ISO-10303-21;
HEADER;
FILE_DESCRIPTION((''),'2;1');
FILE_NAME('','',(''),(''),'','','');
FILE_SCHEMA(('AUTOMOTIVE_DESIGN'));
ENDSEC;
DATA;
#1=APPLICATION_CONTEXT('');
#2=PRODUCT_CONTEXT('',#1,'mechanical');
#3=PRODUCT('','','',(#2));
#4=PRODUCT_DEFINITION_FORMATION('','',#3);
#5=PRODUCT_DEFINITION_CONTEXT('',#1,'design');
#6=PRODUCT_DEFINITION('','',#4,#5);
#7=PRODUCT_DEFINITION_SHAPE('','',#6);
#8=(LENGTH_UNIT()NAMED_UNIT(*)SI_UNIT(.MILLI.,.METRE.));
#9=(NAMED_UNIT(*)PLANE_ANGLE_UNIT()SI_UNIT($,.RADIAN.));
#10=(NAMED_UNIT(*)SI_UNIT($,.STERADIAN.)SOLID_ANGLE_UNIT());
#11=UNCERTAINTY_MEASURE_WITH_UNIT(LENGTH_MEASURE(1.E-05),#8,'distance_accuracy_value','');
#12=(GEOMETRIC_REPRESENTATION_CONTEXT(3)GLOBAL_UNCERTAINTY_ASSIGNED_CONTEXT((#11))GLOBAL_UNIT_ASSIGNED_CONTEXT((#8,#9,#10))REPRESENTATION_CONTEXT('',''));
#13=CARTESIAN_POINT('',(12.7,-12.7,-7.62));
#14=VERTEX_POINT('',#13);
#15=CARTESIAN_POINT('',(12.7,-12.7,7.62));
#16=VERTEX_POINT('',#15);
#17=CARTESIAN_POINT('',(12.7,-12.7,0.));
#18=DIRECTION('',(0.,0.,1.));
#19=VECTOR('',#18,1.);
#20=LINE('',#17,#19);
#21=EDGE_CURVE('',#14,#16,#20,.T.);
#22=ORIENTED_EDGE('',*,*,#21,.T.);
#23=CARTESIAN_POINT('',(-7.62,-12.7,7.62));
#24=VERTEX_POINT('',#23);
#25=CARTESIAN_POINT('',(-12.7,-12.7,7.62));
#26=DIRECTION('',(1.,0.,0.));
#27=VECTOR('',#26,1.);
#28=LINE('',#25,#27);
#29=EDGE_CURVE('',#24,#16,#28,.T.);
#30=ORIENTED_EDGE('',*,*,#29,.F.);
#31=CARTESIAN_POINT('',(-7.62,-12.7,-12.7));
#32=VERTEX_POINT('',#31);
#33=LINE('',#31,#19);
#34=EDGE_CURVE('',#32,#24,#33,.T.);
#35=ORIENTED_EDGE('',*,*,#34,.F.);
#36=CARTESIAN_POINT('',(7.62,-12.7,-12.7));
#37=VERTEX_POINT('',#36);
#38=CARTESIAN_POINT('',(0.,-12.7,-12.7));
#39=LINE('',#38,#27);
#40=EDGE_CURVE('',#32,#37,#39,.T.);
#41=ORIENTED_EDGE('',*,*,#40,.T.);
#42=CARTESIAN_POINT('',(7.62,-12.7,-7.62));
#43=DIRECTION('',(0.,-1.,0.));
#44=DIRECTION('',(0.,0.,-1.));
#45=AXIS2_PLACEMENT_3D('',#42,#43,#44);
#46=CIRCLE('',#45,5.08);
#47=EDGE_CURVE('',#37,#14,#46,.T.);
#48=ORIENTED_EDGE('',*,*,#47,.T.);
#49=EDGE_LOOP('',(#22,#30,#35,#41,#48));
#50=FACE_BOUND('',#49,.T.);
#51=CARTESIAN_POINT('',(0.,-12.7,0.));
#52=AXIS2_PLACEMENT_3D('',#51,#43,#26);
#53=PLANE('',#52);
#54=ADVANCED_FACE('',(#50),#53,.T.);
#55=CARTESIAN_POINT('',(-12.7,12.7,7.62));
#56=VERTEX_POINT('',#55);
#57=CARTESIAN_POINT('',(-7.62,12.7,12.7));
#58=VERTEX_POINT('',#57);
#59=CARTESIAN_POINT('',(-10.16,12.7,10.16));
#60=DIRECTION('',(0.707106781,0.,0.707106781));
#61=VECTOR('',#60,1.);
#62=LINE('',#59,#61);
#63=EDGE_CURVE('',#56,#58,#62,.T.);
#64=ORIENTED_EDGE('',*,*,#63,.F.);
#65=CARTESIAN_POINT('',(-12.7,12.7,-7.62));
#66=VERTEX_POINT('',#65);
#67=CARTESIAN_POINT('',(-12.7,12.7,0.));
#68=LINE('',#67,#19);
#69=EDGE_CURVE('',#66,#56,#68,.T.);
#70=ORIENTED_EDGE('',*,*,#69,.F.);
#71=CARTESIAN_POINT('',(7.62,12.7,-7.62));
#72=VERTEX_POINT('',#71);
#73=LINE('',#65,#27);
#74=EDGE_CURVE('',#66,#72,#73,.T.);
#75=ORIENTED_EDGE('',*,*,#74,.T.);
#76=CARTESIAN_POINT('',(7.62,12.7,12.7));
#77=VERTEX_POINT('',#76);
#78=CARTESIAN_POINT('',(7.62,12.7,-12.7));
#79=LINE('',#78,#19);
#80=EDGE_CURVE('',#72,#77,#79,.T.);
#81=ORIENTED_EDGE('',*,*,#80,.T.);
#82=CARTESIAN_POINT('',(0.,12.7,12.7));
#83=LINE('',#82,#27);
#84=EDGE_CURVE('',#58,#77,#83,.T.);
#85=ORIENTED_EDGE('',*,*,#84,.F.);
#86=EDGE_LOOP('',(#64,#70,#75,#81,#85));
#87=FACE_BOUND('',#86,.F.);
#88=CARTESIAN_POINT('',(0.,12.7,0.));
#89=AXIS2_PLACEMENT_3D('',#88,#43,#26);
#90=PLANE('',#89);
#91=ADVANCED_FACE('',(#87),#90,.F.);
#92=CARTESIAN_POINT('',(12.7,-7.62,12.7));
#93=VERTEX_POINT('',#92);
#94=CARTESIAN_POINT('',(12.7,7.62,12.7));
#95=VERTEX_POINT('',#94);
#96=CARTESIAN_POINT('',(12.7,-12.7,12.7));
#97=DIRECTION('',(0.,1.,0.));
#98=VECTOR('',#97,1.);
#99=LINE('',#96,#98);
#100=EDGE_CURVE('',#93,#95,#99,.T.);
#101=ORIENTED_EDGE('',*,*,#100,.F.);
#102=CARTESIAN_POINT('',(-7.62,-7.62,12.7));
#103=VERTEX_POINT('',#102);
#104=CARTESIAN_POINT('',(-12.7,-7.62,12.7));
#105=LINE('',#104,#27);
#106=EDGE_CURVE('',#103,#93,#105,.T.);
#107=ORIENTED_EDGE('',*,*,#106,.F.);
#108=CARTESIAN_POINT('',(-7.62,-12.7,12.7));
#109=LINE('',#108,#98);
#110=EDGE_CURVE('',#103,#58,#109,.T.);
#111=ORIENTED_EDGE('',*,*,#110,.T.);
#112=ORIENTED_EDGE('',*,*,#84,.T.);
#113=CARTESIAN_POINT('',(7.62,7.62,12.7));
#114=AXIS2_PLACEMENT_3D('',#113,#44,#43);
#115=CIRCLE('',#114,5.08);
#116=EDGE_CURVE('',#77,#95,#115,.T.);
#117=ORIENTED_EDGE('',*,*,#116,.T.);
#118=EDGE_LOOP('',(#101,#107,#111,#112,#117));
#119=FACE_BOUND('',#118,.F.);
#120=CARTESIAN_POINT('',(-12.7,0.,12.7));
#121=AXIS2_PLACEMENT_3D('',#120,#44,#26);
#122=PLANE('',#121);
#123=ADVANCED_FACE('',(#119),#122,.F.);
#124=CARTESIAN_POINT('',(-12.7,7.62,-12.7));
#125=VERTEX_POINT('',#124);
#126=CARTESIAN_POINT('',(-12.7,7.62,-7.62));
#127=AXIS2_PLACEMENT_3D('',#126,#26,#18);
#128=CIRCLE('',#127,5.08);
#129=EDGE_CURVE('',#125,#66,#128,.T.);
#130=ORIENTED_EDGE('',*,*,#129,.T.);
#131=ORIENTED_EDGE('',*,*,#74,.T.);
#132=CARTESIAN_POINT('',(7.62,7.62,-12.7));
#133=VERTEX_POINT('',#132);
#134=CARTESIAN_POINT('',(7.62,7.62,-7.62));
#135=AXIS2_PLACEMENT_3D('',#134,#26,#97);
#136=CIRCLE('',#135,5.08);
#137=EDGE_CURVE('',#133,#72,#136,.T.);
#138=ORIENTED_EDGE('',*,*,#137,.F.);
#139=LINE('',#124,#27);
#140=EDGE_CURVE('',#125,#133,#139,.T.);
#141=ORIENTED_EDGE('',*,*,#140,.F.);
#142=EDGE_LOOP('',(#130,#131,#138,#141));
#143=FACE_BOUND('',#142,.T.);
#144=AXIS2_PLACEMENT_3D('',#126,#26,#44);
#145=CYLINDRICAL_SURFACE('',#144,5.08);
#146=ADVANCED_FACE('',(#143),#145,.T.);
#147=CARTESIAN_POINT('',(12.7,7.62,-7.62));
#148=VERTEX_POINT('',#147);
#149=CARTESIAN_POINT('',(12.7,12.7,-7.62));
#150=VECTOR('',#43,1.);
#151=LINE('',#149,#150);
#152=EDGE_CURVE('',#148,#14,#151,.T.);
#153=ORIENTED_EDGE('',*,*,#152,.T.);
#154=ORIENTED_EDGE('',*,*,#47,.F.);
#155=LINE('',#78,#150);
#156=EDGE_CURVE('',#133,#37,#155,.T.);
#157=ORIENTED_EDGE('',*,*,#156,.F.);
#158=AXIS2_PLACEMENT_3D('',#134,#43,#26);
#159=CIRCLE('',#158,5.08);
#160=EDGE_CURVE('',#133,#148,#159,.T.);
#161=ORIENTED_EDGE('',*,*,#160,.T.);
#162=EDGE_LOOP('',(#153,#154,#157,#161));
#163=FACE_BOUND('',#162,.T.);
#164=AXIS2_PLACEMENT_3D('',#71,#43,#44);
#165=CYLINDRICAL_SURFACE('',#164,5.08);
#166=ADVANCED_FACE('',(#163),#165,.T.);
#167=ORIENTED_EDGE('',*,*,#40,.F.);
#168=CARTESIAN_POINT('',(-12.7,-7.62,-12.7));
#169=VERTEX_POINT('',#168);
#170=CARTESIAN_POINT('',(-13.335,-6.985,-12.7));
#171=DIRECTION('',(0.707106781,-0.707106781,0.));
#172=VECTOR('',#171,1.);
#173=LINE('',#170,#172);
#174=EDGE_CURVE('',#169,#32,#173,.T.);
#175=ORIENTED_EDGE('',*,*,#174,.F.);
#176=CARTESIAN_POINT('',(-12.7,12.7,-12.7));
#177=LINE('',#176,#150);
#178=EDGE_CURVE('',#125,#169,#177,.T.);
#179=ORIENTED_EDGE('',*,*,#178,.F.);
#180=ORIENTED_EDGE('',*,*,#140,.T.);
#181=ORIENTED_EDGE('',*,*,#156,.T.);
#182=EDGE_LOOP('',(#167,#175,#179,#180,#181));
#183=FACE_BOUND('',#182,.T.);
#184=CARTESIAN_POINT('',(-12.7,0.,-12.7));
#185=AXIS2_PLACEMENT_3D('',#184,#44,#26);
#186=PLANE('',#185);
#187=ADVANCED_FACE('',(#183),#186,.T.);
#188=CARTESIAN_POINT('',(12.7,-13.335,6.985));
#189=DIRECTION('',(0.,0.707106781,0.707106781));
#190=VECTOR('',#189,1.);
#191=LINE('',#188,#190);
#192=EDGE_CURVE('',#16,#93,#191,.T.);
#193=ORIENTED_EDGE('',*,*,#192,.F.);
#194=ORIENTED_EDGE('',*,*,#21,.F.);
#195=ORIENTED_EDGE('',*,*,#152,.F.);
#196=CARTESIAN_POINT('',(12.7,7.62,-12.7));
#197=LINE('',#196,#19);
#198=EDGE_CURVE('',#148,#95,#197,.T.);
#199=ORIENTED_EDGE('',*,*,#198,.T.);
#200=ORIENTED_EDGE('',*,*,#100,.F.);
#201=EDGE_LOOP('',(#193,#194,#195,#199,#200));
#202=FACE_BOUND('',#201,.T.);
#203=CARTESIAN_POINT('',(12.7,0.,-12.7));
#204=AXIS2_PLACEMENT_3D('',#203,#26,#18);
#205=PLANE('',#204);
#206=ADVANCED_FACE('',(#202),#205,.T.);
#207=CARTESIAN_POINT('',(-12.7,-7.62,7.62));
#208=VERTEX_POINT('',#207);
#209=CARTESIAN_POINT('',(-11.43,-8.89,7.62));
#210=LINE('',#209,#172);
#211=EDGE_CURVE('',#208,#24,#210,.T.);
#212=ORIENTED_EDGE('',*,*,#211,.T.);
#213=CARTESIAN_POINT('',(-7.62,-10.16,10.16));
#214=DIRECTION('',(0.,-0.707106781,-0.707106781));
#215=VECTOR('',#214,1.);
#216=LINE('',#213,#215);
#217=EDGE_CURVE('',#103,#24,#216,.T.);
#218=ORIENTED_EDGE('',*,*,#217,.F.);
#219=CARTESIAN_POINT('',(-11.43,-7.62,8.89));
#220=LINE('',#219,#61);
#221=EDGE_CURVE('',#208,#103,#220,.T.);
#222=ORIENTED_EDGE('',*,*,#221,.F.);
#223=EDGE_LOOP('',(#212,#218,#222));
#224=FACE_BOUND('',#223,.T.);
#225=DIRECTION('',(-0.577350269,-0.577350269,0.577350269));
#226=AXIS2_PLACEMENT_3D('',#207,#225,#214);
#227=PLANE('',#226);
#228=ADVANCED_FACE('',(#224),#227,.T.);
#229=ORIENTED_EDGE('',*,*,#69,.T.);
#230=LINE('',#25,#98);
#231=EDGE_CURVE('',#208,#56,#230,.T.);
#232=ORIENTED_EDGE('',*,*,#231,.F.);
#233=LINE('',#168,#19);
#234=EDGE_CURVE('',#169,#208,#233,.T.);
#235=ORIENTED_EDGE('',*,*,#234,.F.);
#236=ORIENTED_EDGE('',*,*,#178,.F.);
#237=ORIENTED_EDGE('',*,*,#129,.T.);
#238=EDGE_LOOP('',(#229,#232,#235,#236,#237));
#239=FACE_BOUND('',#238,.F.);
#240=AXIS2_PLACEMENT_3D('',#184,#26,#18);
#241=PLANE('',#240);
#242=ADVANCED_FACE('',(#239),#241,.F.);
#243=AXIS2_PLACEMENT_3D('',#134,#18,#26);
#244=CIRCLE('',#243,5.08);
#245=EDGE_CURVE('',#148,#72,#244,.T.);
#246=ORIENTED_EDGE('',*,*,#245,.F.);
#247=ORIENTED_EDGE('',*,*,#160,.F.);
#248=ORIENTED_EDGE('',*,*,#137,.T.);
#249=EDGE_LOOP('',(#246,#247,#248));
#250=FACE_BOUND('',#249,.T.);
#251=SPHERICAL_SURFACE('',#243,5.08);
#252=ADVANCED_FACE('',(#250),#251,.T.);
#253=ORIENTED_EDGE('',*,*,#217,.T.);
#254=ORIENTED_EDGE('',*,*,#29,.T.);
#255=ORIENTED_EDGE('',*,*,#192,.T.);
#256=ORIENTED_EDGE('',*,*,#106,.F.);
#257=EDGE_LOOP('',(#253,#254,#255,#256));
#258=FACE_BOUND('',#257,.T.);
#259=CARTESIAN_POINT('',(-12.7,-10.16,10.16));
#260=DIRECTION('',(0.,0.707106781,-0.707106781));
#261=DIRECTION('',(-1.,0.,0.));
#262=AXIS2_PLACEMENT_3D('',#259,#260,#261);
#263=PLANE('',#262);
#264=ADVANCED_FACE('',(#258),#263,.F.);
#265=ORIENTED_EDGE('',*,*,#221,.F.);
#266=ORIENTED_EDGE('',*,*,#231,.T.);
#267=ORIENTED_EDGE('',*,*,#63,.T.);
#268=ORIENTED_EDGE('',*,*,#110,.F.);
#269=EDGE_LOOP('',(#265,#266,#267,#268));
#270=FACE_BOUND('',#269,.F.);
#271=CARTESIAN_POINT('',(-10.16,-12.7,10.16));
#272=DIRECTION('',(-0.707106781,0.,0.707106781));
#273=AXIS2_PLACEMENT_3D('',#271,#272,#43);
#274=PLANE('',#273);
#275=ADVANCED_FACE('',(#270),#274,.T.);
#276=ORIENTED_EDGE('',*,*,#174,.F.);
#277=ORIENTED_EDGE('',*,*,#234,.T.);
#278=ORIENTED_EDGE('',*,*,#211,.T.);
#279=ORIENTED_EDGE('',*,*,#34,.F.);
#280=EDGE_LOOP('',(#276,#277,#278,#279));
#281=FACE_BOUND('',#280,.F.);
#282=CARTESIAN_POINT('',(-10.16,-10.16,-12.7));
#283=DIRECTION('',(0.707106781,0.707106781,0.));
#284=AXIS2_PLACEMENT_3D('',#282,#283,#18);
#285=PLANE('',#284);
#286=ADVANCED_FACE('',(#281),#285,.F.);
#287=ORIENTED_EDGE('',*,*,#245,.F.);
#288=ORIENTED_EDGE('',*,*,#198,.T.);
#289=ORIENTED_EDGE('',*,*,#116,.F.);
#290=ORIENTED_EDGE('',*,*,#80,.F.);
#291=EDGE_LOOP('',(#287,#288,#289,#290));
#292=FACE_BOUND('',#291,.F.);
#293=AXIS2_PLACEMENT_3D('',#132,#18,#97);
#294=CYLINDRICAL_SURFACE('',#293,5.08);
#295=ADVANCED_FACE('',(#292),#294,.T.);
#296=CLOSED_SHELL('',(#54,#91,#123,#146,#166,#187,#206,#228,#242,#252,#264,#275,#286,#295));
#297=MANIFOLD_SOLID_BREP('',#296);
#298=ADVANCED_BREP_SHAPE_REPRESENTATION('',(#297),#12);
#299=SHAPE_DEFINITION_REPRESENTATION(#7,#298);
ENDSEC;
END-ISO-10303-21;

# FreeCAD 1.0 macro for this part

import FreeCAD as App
import Part
import Sketcher
Q = App.Units.Quantity


def edges_at(feature, points):
    """Names of the edges that pass closest to the given points."""
    edges = feature.Shape.Edges
    near = lambda p: min(range(len(edges)), key=lambda i: edges[i].distToShape(Part.Vertex(*p))[0])
    return sorted({f"Edge{near(p) + 1}" for p in points})


def add_polygon(sketch, points):
    """Adds a closed chain of lines whose ends are joined by coincident constraints."""
    first, n = sketch.GeometryCount, len(points)
    for a, b in zip(points, points[1:] + points[:1]):
        sketch.addGeometry(Part.LineSegment(App.Vector(*a, 0), App.Vector(*b, 0)), False)
    for i in range(n):
        sketch.addConstraint(Sketcher.Constraint("Coincident", first + i, 2, first + (i + 1) % n, 1))

doc = App.newDocument("Part")
body = doc.addObject("PartDesign::Body", "Body")

# Sketch on XZ plane
sketch1 = body.newObject("Sketcher::SketchObject", "Sketch")
sketch1.AttachmentSupport = (doc.getObject("XZ_Plane"), [""])
sketch1.MapMode = "FlatFace"
add_polygon(sketch1, [(-13, 13), (-13, -13), (13, -13), (13, 13)])  # lines 0-3
sketch1.addConstraint([
    Sketcher.Constraint("Vertical", 0),
    Sketcher.Constraint("Horizontal", 1),
    Sketcher.Constraint("Vertical", 2),
    Sketcher.Constraint("Horizontal", 3),
    Sketcher.Constraint("Symmetric", 0, 2, 2, 2, -1, 1),
    Sketcher.Constraint("Equal", 3, 0),
    Sketcher.Constraint("DistanceX", 1, 1, 1, 2, Q("1 in")),
])
pad1 = body.newObject("PartDesign::Pad", "Pad")
pad1.Profile = sketch1
pad1.Length = Q("1 in")
pad1.Midplane = True
doc.recompute()

chamfer = body.newObject("PartDesign::Chamfer", "Chamfer")
chamfer.Base = (pad1, edges_at(pad1, [(0, -12.7, 12.7), (-12.7, 0, 12.7), (-12.7, -12.7, 0)]))
chamfer.Size = Q("0.2 in")
doc.recompute()

fillet = body.newObject("PartDesign::Fillet", "Fillet")
fillet.Base = (chamfer, edges_at(chamfer, [(12.7, 12.7, 0), (12.7, 0, -12.7), (0, 12.7, -12.7)]))
fillet.Radius = Q("0.2 in")

doc.recompute()
